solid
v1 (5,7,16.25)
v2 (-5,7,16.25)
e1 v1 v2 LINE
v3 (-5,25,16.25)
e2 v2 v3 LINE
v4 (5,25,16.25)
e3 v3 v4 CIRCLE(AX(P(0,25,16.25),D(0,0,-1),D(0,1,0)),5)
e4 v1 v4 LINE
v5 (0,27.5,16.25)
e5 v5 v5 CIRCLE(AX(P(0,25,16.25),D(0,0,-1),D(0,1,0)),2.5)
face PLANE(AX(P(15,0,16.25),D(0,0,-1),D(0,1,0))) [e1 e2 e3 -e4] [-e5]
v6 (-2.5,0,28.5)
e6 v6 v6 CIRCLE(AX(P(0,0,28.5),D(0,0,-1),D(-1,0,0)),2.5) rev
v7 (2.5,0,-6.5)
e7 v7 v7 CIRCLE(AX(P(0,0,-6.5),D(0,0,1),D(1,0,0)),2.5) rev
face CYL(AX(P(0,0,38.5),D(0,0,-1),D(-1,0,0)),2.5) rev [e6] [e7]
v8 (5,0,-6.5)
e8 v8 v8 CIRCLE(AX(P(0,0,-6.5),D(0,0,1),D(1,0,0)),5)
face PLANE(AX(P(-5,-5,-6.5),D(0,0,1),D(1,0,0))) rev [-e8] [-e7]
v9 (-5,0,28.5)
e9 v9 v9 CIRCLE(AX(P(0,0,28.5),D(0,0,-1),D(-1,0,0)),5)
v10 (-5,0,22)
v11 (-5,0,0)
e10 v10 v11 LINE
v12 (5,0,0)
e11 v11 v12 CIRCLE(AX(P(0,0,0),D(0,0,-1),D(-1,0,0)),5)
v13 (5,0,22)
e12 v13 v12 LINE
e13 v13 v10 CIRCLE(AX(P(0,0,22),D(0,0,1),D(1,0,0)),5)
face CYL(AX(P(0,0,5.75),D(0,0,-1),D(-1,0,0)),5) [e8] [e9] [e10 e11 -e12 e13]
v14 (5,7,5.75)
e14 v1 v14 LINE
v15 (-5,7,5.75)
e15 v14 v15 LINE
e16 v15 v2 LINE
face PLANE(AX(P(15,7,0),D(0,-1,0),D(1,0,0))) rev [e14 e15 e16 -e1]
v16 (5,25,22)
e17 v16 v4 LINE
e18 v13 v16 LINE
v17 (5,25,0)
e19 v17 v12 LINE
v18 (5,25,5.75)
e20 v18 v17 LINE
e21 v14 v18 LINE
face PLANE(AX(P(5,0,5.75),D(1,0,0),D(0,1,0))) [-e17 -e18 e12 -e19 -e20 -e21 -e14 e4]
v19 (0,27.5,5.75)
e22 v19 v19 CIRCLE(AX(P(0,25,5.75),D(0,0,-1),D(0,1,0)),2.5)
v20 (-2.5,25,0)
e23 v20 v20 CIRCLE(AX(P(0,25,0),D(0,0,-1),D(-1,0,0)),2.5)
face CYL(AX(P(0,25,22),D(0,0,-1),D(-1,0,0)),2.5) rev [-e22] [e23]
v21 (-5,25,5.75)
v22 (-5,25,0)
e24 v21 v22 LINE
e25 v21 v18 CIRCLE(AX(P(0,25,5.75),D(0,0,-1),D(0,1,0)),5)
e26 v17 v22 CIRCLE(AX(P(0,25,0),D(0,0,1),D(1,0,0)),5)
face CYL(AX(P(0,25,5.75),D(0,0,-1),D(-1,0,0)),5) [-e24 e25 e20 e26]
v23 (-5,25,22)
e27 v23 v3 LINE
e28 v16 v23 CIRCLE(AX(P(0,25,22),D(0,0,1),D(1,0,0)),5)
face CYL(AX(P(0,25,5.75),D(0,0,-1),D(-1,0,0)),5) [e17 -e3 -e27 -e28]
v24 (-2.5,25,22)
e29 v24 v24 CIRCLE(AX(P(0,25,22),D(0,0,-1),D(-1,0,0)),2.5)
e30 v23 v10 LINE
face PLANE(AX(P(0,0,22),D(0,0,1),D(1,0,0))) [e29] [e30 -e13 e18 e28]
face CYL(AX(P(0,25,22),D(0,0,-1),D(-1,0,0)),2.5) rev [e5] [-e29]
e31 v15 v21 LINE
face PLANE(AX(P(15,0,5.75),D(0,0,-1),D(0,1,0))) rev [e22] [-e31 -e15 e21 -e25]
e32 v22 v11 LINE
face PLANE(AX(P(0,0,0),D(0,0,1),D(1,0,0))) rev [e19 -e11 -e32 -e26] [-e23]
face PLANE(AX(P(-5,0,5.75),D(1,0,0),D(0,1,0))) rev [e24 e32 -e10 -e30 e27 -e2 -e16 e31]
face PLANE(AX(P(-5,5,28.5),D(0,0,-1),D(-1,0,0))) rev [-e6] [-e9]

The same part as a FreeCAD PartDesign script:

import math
import FreeCAD as App
import Part
import Sketcher
Q = App.Units.Quantity


def add_polygon(sketch, points):
    """Adds a closed chain of lines whose ends are joined by coincident constraints."""
    first, n = sketch.GeometryCount, len(points)
    for a, b in zip(points, points[1:] + points[:1]):
        sketch.addGeometry(Part.LineSegment(App.Vector(*a, 0), App.Vector(*b, 0)), False)
    for i in range(n):
        sketch.addConstraint(Sketcher.Constraint("Coincident", first + i, 2, first + (i + 1) % n, 1))

doc = App.newDocument("Part")
body = doc.addObject("PartDesign::Body", "Body")

sketch1 = doc.addObject("Sketcher::SketchObject", "Sketch")
body.addObject(sketch1)
sketch1.AttachmentSupport = (doc.XY_Plane, [""])
sketch1.MapMode = "FlatFace"
sketch1.addGeometry(Part.ArcOfCircle(Part.Circle(App.Vector(0, 0, 0), App.Vector(0, 0, 1), 5), math.radians(180), math.radians(360)), False)
sketch1.addGeometry(Part.LineSegment(App.Vector(5, 0, 0), App.Vector(5, 25, 0)), False)
sketch1.addGeometry(Part.ArcOfCircle(Part.Circle(App.Vector(0, 25, 0), App.Vector(0, 0, 1), 5), math.radians(0), math.radians(180)), False)
sketch1.addGeometry(Part.LineSegment(App.Vector(-5, 25, 0), App.Vector(-5, 0, 0)), False)
sketch1.addConstraint(Sketcher.Constraint("Tangent", 0, 2, 1, 1))
sketch1.addConstraint(Sketcher.Constraint("Tangent", 1, 2, 2, 1))
sketch1.addConstraint(Sketcher.Constraint("Tangent", 2, 2, 3, 1))
sketch1.addConstraint(Sketcher.Constraint("Tangent", 3, 2, 0, 1))
sketch1.addConstraint(Sketcher.Constraint("Vertical", 1))
sketch1.addConstraint(Sketcher.Constraint("Vertical", 3))
sketch1.addConstraint(Sketcher.Constraint("Coincident", 0, 3, -1, 1))
sketch1.addConstraint(Sketcher.Constraint("Radius", 0, Q("5 mm")))
sketch1.addConstraint(Sketcher.Constraint("DistanceY", 1, 1, 1, 2, Q("25 mm")))
pad1 = doc.addObject("PartDesign::Pad", "Pad")
body.addObject(pad1)
pad1.Profile = sketch1
pad1.Length = 5.75

sketch2 = doc.addObject("Sketcher::SketchObject", "Sketch001")
body.addObject(sketch2)
sketch2.AttachmentSupport = (doc.XY_Plane, [""])
sketch2.MapMode = "FlatFace"
sketch2.AttachmentOffset = App.Placement(App.Vector(0, 0, 5.75), App.Rotation())
sketch2.addGeometry(Part.Circle(App.Vector(0, 25, 0), App.Vector(0, 0, 1), 2.5), False)
sketch2.addConstraint(Sketcher.Constraint("PointOnObject", 0, 3, -2))
sketch2.addConstraint(Sketcher.Constraint("Diameter", 0, Q("5 mm")))
sketch2.addConstraint(Sketcher.Constraint("DistanceY", -1, 1, 0, 3, Q("25.008621 mm")))
pad2 = doc.addObject("PartDesign::Pad", "Pad001")
body.addObject(pad2)
pad2.Profile = sketch2
pad2.Length = 10.5

sketch3 = doc.addObject("Sketcher::SketchObject", "Sketch002")
body.addObject(sketch3)
sketch3.AttachmentSupport = (doc.XY_Plane, [""])
sketch3.MapMode = "FlatFace"
sketch3.AttachmentOffset = App.Placement(App.Vector(0, 0, 5.75), App.Rotation())
sketch3.addGeometry(Part.LineSegment(App.Vector(5, 0, 0), App.Vector(5, 25, 0)), False)
sketch3.addGeometry(Part.ArcOfCircle(Part.Circle(App.Vector(0, 25, 0), App.Vector(0, 0, 1), 5), math.radians(0), math.radians(180)), False)
sketch3.addGeometry(Part.LineSegment(App.Vector(-5, 25, 0), App.Vector(-5, 0, 0)), False)
sketch3.addGeometry(Part.ArcOfCircle(Part.Circle(App.Vector(0, 0, 0), App.Vector(0, 0, 1), 5), math.radians(180), math.radians(360)), False)
sketch3.addConstraint(Sketcher.Constraint("Tangent", 0, 2, 1, 1))
sketch3.addConstraint(Sketcher.Constraint("Tangent", 1, 2, 2, 1))
sketch3.addConstraint(Sketcher.Constraint("Tangent", 2, 2, 3, 1))
sketch3.addConstraint(Sketcher.Constraint("Tangent", 3, 2, 0, 1))
sketch3.addConstraint(Sketcher.Constraint("Vertical", 0))
sketch3.addConstraint(Sketcher.Constraint("Vertical", 2))
sketch3.addConstraint(Sketcher.Constraint("Coincident", 3, 3, -1, 1))
sketch3.addConstraint(Sketcher.Constraint("Radius", 1, Q("5 mm")))
sketch3.addConstraint(Sketcher.Constraint("DistanceY", 0, 1, 0, 2, Q("25 mm")))
pad3 = doc.addObject("PartDesign::Pad", "Pad002")
body.addObject(pad3)
pad3.Profile = sketch3
pad3.Length = 16.25

sketch4 = doc.addObject("Sketcher::SketchObject", "Sketch003")
body.addObject(sketch4)
sketch4.AttachmentSupport = (doc.XY_Plane, [""])
sketch4.MapMode = "FlatFace"
sketch4.AttachmentOffset = App.Placement(App.Vector(0, 0, 22), App.Rotation())
sketch4.addGeometry(Part.Circle(App.Vector(0, 0, 0), App.Vector(0, 0, 1), 5), False)
sketch4.addGeometry(Part.Circle(App.Vector(0, 0, 0), App.Vector(0, 0, 1), 2.5), False)
sketch4.addConstraint(Sketcher.Constraint("Coincident", 0, 3, -1, 1))
sketch4.addConstraint(Sketcher.Constraint("Coincident", 1, 3, -1, 1))
sketch4.addConstraint(Sketcher.Constraint("Diameter", 0, Q("10 mm")))
sketch4.addConstraint(Sketcher.Constraint("Diameter", 1, Q("5 mm")))
pad4 = doc.addObject("PartDesign::Pad", "Pad003")
body.addObject(pad4)
pad4.Profile = sketch4
pad4.Length = 8.5

sketch5 = doc.addObject("Sketcher::SketchObject", "Sketch004")
body.addObject(sketch5)
sketch5.AttachmentSupport = (doc.XY_Plane, [""])
sketch5.MapMode = "FlatFace"
sketch5.AttachmentOffset = App.Placement(App.Vector(0, 0, 22), App.Rotation())
sketch5.addGeometry(Part.Circle(App.Vector(0, 0, 0), App.Vector(0, 0, 1), 2.5), False)
sketch5.addConstraint(Sketcher.Constraint("Coincident", 0, 3, -1, 1))
sketch5.addConstraint(Sketcher.Constraint("Diameter", 0, Q("5 mm")))
pad5 = doc.addObject("PartDesign::Pad", "Pad004")
body.addObject(pad5)
pad5.Profile = sketch5
pad5.Length = 16.25

sketch6 = doc.addObject("Sketcher::SketchObject", "Sketch005")
body.addObject(sketch6)
sketch6.AttachmentSupport = (doc.XY_Plane, [""])
sketch6.MapMode = "FlatFace"
sketch6.AttachmentOffset = App.Placement(App.Vector(0, 0, -8.5), App.Rotation())
sketch6.addGeometry(Part.Circle(App.Vector(0, 0, 0), App.Vector(0, 0, 1), 5), False)
sketch6.addConstraint(Sketcher.Constraint("Coincident", 0, 3, -1, 1))
sketch6.addConstraint(Sketcher.Constraint("Diameter", 0, Q("10 mm")))
pad6 = doc.addObject("PartDesign::Pad", "Pad005")
body.addObject(pad6)
pad6.Profile = sketch6
pad6.Length = 8.5

sketch7 = doc.addObject("Sketcher::SketchObject", "Sketch006")
body.addObject(sketch7)
sketch7.AttachmentSupport = (doc.XY_Plane, [""])
sketch7.MapMode = "FlatFace"
sketch7.AttachmentOffset = App.Placement(App.Vector(0, 0, -16.5), App.Rotation())
sketch7.addGeometry(Part.Circle(App.Vector(0, 0, 0), App.Vector(0, 0, 1), 2.5), False)
sketch7.addConstraint(Sketcher.Constraint("Coincident", 0, 3, -1, 1))
sketch7.addConstraint(Sketcher.Constraint("Diameter", 0, Q("5 mm")))
pad7 = doc.addObject("PartDesign::Pad", "Pad006")
body.addObject(pad7)
pad7.Profile = sketch7
pad7.Length = 8

sketch8 = doc.addObject("Sketcher::SketchObject", "Sketch007")
body.addObject(sketch8)
sketch8.AttachmentSupport = (doc.YZ_Plane, [""])
sketch8.MapMode = "FlatFace"
sketch8.AttachmentOffset = App.Placement(App.Vector(0, 0, -5), App.Rotation())
add_polygon(sketch8, [(7, 6), (7, 16), (30, 16), (30, 6)])
sketch8.addConstraint(Sketcher.Constraint("Vertical", 0))
sketch8.addConstraint(Sketcher.Constraint("Horizontal", 1))
sketch8.addConstraint(Sketcher.Constraint("Vertical", 2))
sketch8.addConstraint(Sketcher.Constraint("Horizontal", 3))
sketch8.addConstraint(Sketcher.Constraint("DistanceX", 1, 1, 1, 2, Q("23 mm")))
sketch8.addConstraint(Sketcher.Constraint("DistanceY", 0, 1, 0, 2, Q("10.5 mm")))
sketch8.addConstraint(Sketcher.Constraint("DistanceX", -1, 1, 0, 2, Q("7 mm")))
sketch8.addConstraint(Sketcher.Constraint("DistanceY", -1, 1, 0, 2, Q("16.25 mm")))
pocket1 = doc.addObject("PartDesign::Pocket", "Pocket")
body.addObject(pocket1)
pocket1.Profile = sketch8
pocket1.Length = 20
pocket1.Reversed = True

sketch9 = doc.addObject("Sketcher::SketchObject", "Sketch008")
body.addObject(sketch9)
sketch9.AttachmentSupport = (doc.XY_Plane, [""])
sketch9.MapMode = "FlatFace"
sketch9.AttachmentOffset = App.Placement(App.Vector(0, 0, 22), App.Rotation())
sketch9.addGeometry(Part.Circle(App.Vector(0, 25, 0), App.Vector(0, 0, 1), 2.5), False)
sketch9.addConstraint(Sketcher.Constraint("PointOnObject", 0, 3, -2))
sketch9.addConstraint(Sketcher.Constraint("Diameter", 0, Q("5 mm")))
sketch9.addConstraint(Sketcher.Constraint("DistanceY", -1, 1, 0, 3, Q("25 mm")))
pad8 = doc.addObject("PartDesign::Pad", "Pad007")
body.addObject(pad8)
pad8.Profile = sketch9
pad8.Length = 22
pad8.Reversed = True

sketch10 = doc.addObject("Sketcher::SketchObject", "Sketch009")
body.addObject(sketch10)
sketch10.AttachmentSupport = (doc.XY_Plane, [""])
sketch10.MapMode = "FlatFace"
sketch10.AttachmentOffset = App.Placement(App.Vector(0, 0, -16.5), App.Rotation())
sketch10.addGeometry(Part.Circle(App.Vector(0, 0, 0), App.Vector(0, 0, 1), 2.5), False)
sketch10.addConstraint(Sketcher.Constraint("Coincident", 0, 3, -1, 1))
sketch10.addConstraint(Sketcher.Constraint("Diameter", 0, Q("5 mm")))
pocket2 = doc.addObject("PartDesign::Pocket", "Pocket001")
body.addObject(pocket2)
pocket2.Profile = sketch10
pocket2.Length = 55
pocket2.Reversed = True

sketch11 = doc.addObject("Sketcher::SketchObject", "Sketch010")
body.addObject(sketch11)
sketch11.AttachmentSupport = (doc.XY_Plane, [""])
sketch11.MapMode = "FlatFace"
sketch11.AttachmentOffset = App.Placement(App.Vector(0, 0, 22), App.Rotation())
sketch11.addGeometry(Part.Circle(App.Vector(0, 25, 0), App.Vector(0, 0, 1), 2.5), False)
sketch11.addConstraint(Sketcher.Constraint("PointOnObject", 0, 3, -2))
sketch11.addConstraint(Sketcher.Constraint("Diameter", 0, Q("5 mm")))
sketch11.addConstraint(Sketcher.Constraint("DistanceY", -1, 1, 0, 3, Q("25 mm")))
pocket3 = doc.addObject("PartDesign::Pocket", "Pocket002")
body.addObject(pocket3)
pocket3.Profile = sketch11
pocket3.Length = 22

sketch12 = doc.addObject("Sketcher::SketchObject", "Sketch011")
body.addObject(sketch12)
sketch12.AttachmentSupport = (doc.YZ_Plane, [""])
sketch12.MapMode = "FlatFace"
add_polygon(sketch12, [(5, -7.5), (-5, -7.5), (-5, -8.5), (5, -8.5)])
add_polygon(sketch12, [(5, 30.5), (-5, 30.5), (-5, 29.5), (5, 29.5)])
sketch12.addConstraint(Sketcher.Constraint("Horizontal", 0))
sketch12.addConstraint(Sketcher.Constraint("Vertical", 1))
sketch12.addConstraint(Sketcher.Constraint("Horizontal", 2))
sketch12.addConstraint(Sketcher.Constraint("Vertical", 3))
sketch12.addConstraint(Sketcher.Constraint("Horizontal", 4))
sketch12.addConstraint(Sketcher.Constraint("Vertical", 5))
sketch12.addConstraint(Sketcher.Constraint("Horizontal", 6))
sketch12.addConstraint(Sketcher.Constraint("Vertical", 7))
sketch12.addConstraint(Sketcher.Constraint("Vertical", 1, 2, 4, 2))
sketch12.addConstraint(Sketcher.Constraint("Vertical", 3, 2, 6, 2))
sketch12.addConstraint(Sketcher.Constraint("Equal", 3, 5))
sketch12.addConstraint(Sketcher.Constraint("DistanceX", 0, 2, 0, 1, Q("10 mm")))
sketch12.addConstraint(Sketcher.Constraint("DistanceY", 1, 2, 1, 1, Q("1 mm")))
sketch12.addConstraint(Sketcher.Constraint("DistanceX", 0, 2, -1, 1, Q("5 mm")))
sketch12.addConstraint(Sketcher.Constraint("DistanceY", 0, 2, 4, 2, Q("38 mm")))
sketch12.addConstraint(Sketcher.Constraint("DistanceY", 0, 2, -1, 1, Q("7.5 mm")))
pocket4 = doc.addObject("PartDesign::Pocket", "Pocket003")
body.addObject(pocket4)
pocket4.Profile = sketch12
pocket4.Length = 20
pocket4.Midplane = True

sketch13 = doc.addObject("Sketcher::SketchObject", "Sketch012")
body.addObject(sketch13)
sketch13.AttachmentSupport = (doc.YZ_Plane, [""])
sketch13.MapMode = "FlatFace"
sketch13.AttachmentOffset = App.Placement(App.Vector(0, 0, 5), App.Rotation())
add_polygon(sketch13, [(5.7, -6.5), (-5, -6.5), (-5, -7.5), (5.7, -7.5)])
add_polygon(sketch13, [(5, 29.5), (-5, 29.5), (-5, 28.5), (5, 28.5)])
sketch13.addConstraint(Sketcher.Constraint("Horizontal", 0))
sketch13.addConstraint(Sketcher.Constraint("Vertical", 1))
sketch13.addConstraint(Sketcher.Constraint("Horizontal", 2))
sketch13.addConstraint(Sketcher.Constraint("Vertical", 3))
sketch13.addConstraint(Sketcher.Constraint("Horizontal", 4))
sketch13.addConstraint(Sketcher.Constraint("Vertical", 5))
sketch13.addConstraint(Sketcher.Constraint("Horizontal", 6))
sketch13.addConstraint(Sketcher.Constraint("Vertical", 7))
sketch13.addConstraint(Sketcher.Constraint("Vertical", 1, 2, 4, 2))
sketch13.addConstraint(Sketcher.Constraint("Equal", 3, 5))
sketch13.addConstraint(Sketcher.Constraint("DistanceX", 4, 2, 4, 1, Q("10 mm")))
sketch13.addConstraint(Sketcher.Constraint("DistanceY", 1, 2, 1, 1, Q("1 mm")))
sketch13.addConstraint(Sketcher.Constraint("DistanceX", 0, 2, -1, 1, Q("5 mm")))
sketch13.addConstraint(Sketcher.Constraint("DistanceY", 0, 2, 4, 2, Q("36 mm")))
sketch13.addConstraint(Sketcher.Constraint("DistanceY", 0, 2, -1, 1, Q("6.5 mm")))
sketch13.addConstraint(Sketcher.Constraint("DistanceX", 0, 2, 0, 1, Q("10.672821 mm")))
pocket5 = doc.addObject("PartDesign::Pocket", "Pocket004")
body.addObject(pocket5)
pocket5.Profile = sketch13
pocket5.Length = 10

doc.recompute()
